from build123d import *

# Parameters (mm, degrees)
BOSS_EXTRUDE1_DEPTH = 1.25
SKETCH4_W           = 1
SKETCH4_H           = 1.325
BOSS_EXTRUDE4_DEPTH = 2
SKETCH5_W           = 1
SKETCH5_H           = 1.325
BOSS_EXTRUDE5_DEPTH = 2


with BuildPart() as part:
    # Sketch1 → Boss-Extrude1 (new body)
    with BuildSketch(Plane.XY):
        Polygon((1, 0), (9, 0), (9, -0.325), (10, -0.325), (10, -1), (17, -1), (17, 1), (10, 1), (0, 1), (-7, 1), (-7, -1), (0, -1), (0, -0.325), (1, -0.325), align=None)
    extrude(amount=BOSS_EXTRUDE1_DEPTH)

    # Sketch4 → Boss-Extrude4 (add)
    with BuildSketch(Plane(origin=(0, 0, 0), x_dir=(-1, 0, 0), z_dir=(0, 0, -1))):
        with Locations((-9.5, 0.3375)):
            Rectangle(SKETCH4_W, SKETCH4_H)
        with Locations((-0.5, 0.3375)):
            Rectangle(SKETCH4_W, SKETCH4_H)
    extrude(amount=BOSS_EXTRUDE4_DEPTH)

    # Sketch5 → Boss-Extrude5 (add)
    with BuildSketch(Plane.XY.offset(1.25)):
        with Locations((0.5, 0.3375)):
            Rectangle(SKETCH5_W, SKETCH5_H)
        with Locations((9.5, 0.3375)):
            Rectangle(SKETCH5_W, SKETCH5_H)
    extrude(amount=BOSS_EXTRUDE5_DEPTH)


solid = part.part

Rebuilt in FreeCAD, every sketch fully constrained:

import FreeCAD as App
import Part
import Sketcher

doc = App.newDocument("Part")
params = doc.addObject("Spreadsheet::Sheet", "Params")
for row, (alias, value) in enumerate([
    ("sketch1_width", "8 mm"),
    ("sketch1_width2", "1 mm"),
    ("sketch1_width3", "7 mm"),
    ("sketch1_height", "2 mm"),
    ("pad1_length", "1.25 mm"),
    ("sketch2_width", "1 mm"),
    ("pad2_length", "2 mm"),
    ("sketch3_width", "1 mm"),
    ("pad3_length", "2 mm"),
], start=1):
    params.set(f"A{row}", alias)
    params.set(f"B{row}", "=" + value)
    params.setAlias(f"B{row}", alias)

body = doc.addObject("PartDesign::Body", "Body")

sketch1 = body.newObject("Sketcher::SketchObject", "Sketch")
sketch1.AttachmentSupport = (doc.getObject("XY_Plane"), [""])
sketch1.MapMode = "FlatFace"
sketch1.addGeometry([
    Part.LineSegment(App.Vector(1, 0, 0), App.Vector(9, 0, 0)),
    Part.LineSegment(App.Vector(9, 0, 0), App.Vector(9, -0.325, 0)),
    Part.LineSegment(App.Vector(9, -0.325, 0), App.Vector(10, -0.325, 0)),
    Part.LineSegment(App.Vector(10, -0.325, 0), App.Vector(10, -1, 0)),
    Part.LineSegment(App.Vector(10, -1, 0), App.Vector(17, -1, 0)),
    Part.LineSegment(App.Vector(17, -1, 0), App.Vector(17, 1, 0)),
    Part.LineSegment(App.Vector(17, 1, 0), App.Vector(-7, 1, 0)),
    Part.LineSegment(App.Vector(-7, 1, 0), App.Vector(-7, -1, 0)),
    Part.LineSegment(App.Vector(-7, -1, 0), App.Vector(0, -1, 0)),
    Part.LineSegment(App.Vector(0, -1, 0), App.Vector(0, -0.325, 0)),
    Part.LineSegment(App.Vector(0, -0.325, 0), App.Vector(1, -0.325, 0)),
    Part.LineSegment(App.Vector(1, -0.325, 0), App.Vector(1, 0, 0)),
], False)
sketch1.addConstraint([
    Sketcher.Constraint("Coincident", 0, 2, 1, 1),
    Sketcher.Constraint("Coincident", 1, 2, 2, 1),
    Sketcher.Constraint("Coincident", 2, 2, 3, 1),
    Sketcher.Constraint("Coincident", 3, 2, 4, 1),
    Sketcher.Constraint("Coincident", 4, 2, 5, 1),
    Sketcher.Constraint("Coincident", 5, 2, 6, 1),
    Sketcher.Constraint("Coincident", 6, 2, 7, 1),
    Sketcher.Constraint("Coincident", 7, 2, 8, 1),
    Sketcher.Constraint("Coincident", 8, 2, 9, 1),
    Sketcher.Constraint("Coincident", 9, 2, 10, 1),
    Sketcher.Constraint("Coincident", 10, 2, 11, 1),
    Sketcher.Constraint("Coincident", 11, 2, 0, 1),
    Sketcher.Constraint("Horizontal", 0),
    Sketcher.Constraint("Vertical", 1),
    Sketcher.Constraint("Horizontal", 2),
    Sketcher.Constraint("Vertical", 3),
    Sketcher.Constraint("Horizontal", 4),
    Sketcher.Constraint("Vertical", 5),
    Sketcher.Constraint("Horizontal", 6),
    Sketcher.Constraint("Vertical", 7),
    Sketcher.Constraint("Horizontal", 8),
    Sketcher.Constraint("Vertical", 9),
    Sketcher.Constraint("Horizontal", 10),
    Sketcher.Constraint("Vertical", 11),
    Sketcher.Constraint("PointOnObject", 0, 2, -1),
    Sketcher.Constraint("PointOnObject", 8, 2, -2),
    Sketcher.Constraint("Horizontal", 4, 2, 7, 2),
    Sketcher.Constraint("Horizontal", 2, 2, 9, 2),
    Sketcher.Constraint("Equal", 4, 8),
    Sketcher.Constraint("Equal", 2, 10),
    Sketcher.Constraint("DistanceX", 0, 1, 0, 2, 8.0),
    Sketcher.Constraint("DistanceX", 2, 1, 2, 2, 1.0),
    Sketcher.Constraint("DistanceX", 4, 1, 4, 2, 7.0),
    Sketcher.Constraint("DistanceY", 5, 1, 5, 2, 2.0),
    Sketcher.Constraint("DistanceY", 3, 2, -1, 1, 1.0),
    Sketcher.Constraint("DistanceY", 1, 2, 1, 1, 0.325),
])
sketch1.setExpression("Constraints[30]", "Params.sketch1_width")
sketch1.setExpression("Constraints[31]", "Params.sketch1_width2")
sketch1.setExpression("Constraints[32]", "Params.sketch1_width3")
sketch1.setExpression("Constraints[33]", "Params.sketch1_height")
pad1 = body.newObject("PartDesign::Pad", "Pad")
pad1.Profile = sketch1
pad1.setExpression("Length", "Params.pad1_length")

sketch2 = body.newObject("Sketcher::SketchObject", "Sketch001")
sketch2.AttachmentSupport = (doc.getObject("XY_Plane"), [""])
sketch2.MapMode = "FlatFace"
sketch2.addGeometry([
    Part.LineSegment(App.Vector(10, 1, 0), App.Vector(10, -0.325, 0)),
    Part.LineSegment(App.Vector(10, -0.325, 0), App.Vector(9, -0.325, 0)),
    Part.LineSegment(App.Vector(9, -0.325, 0), App.Vector(9, 1, 0)),
    Part.LineSegment(App.Vector(9, 1, 0), App.Vector(10, 1, 0)),
    Part.LineSegment(App.Vector(1, 1, 0), App.Vector(1, -0.325, 0)),
    Part.LineSegment(App.Vector(1, -0.325, 0), App.Vector(0, -0.325, 0)),
    Part.LineSegment(App.Vector(0, -0.325, 0), App.Vector(0, 1, 0)),
    Part.LineSegment(App.Vector(0, 1, 0), App.Vector(1, 1, 0)),
], False)
sketch2.addConstraint([
    Sketcher.Constraint("Coincident", 0, 2, 1, 1),
    Sketcher.Constraint("Coincident", 1, 2, 2, 1),
    Sketcher.Constraint("Coincident", 2, 2, 3, 1),
    Sketcher.Constraint("Coincident", 3, 2, 0, 1),
    Sketcher.Constraint("Coincident", 4, 2, 5, 1),
    Sketcher.Constraint("Coincident", 5, 2, 6, 1),
    Sketcher.Constraint("Coincident", 6, 2, 7, 1),
    Sketcher.Constraint("Coincident", 7, 2, 4, 1),
    Sketcher.Constraint("Vertical", 0),
    Sketcher.Constraint("Horizontal", 1),
    Sketcher.Constraint("Vertical", 2),
    Sketcher.Constraint("Horizontal", 3),
    Sketcher.Constraint("Vertical", 4),
    Sketcher.Constraint("Horizontal", 5),
    Sketcher.Constraint("Vertical", 6),
    Sketcher.Constraint("Horizontal", 7),
    Sketcher.Constraint("PointOnObject", 5, 2, -2),
    Sketcher.Constraint("Horizontal", 1, 2, 4, 2),
    Sketcher.Constraint("Horizontal", 3, 2, 6, 2),
    Sketcher.Constraint("Equal", 3, 5),
    Sketcher.Constraint("DistanceX", 1, 2, 1, 1, 1.0),
    Sketcher.Constraint("DistanceX", -1, 1, 0, 2, 10.0),
    Sketcher.Constraint("DistanceY", -1, 1, 2, 2, 1.0),
    Sketcher.Constraint("DistanceY", 0, 2, 0, 1, 1.325),
])
sketch2.setExpression("Constraints[20]", "Params.sketch2_width")
pad2 = body.newObject("PartDesign::Pad", "Pad001")
pad2.Profile = sketch2
pad2.setExpression("Length", "Params.pad2_length")
pad2.Reversed = True

sketch3 = body.newObject("Sketcher::SketchObject", "Sketch002")
sketch3.AttachmentSupport = (doc.getObject("XY_Plane"), [""])
sketch3.MapMode = "FlatFace"
sketch3.AttachmentOffset = App.Placement(App.Vector(0, 0, 1.25), App.Rotation())
sketch3.addGeometry([
    Part.LineSegment(App.Vector(0, 1, 0), App.Vector(0, -0.325, 0)),
    Part.LineSegment(App.Vector(0, -0.325, 0), App.Vector(1, -0.325, 0)),
    Part.LineSegment(App.Vector(1, -0.325, 0), App.Vector(1, 1, 0)),
    Part.LineSegment(App.Vector(1, 1, 0), App.Vector(0, 1, 0)),
    Part.LineSegment(App.Vector(9, 1, 0), App.Vector(9, -0.325, 0)),
    Part.LineSegment(App.Vector(9, -0.325, 0), App.Vector(10, -0.325, 0)),
    Part.LineSegment(App.Vector(10, -0.325, 0), App.Vector(10, 1, 0)),
    Part.LineSegment(App.Vector(10, 1, 0), App.Vector(9, 1, 0)),
], False)
sketch3.addConstraint([
    Sketcher.Constraint("Coincident", 0, 2, 1, 1),
    Sketcher.Constraint("Coincident", 1, 2, 2, 1),
    Sketcher.Constraint("Coincident", 2, 2, 3, 1),
    Sketcher.Constraint("Coincident", 3, 2, 0, 1),
    Sketcher.Constraint("Coincident", 4, 2, 5, 1),
    Sketcher.Constraint("Coincident", 5, 2, 6, 1),
    Sketcher.Constraint("Coincident", 6, 2, 7, 1),
    Sketcher.Constraint("Coincident", 7, 2, 4, 1),
    Sketcher.Constraint("Vertical", 0),
    Sketcher.Constraint("Horizontal", 1),
    Sketcher.Constraint("Vertical", 2),
    Sketcher.Constraint("Horizontal", 3),
    Sketcher.Constraint("Vertical", 4),
    Sketcher.Constraint("Horizontal", 5),
    Sketcher.Constraint("Vertical", 6),
    Sketcher.Constraint("Horizontal", 7),
    Sketcher.Constraint("PointOnObject", 0, 2, -2),
    Sketcher.Constraint("Horizontal", 1, 2, 4, 2),
    Sketcher.Constraint("Horizontal", 3, 2, 6, 2),
    Sketcher.Constraint("Equal", 3, 5),
    Sketcher.Constraint("DistanceX", 1, 1, 1, 2, 1.0),
    Sketcher.Constraint("DistanceY", -1, 1, 2, 2, 1.0),
    Sketcher.Constraint("DistanceX", -1, 1, 4, 2, 9.0),
    Sketcher.Constraint("DistanceY", 0, 2, 0, 1, 1.325),
])
sketch3.setExpression("Constraints[20]", "Params.sketch3_width")
pad3 = body.newObject("PartDesign::Pad", "Pad002")
pad3.Profile = sketch3
pad3.setExpression("Length", "Params.pad3_length")

doc.recompute()
